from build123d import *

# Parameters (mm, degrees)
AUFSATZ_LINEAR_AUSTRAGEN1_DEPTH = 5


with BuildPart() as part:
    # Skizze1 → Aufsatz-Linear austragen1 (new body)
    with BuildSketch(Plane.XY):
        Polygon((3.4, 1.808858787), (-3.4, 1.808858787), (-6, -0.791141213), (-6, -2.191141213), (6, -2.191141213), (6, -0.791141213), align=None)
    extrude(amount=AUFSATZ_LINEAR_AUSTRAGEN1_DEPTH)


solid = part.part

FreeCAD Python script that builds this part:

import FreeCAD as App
import Part
import Sketcher
from FreeCAD import Vector

doc = App.newDocument("Part")
params = doc.addObject("Spreadsheet::Sheet", "Params")
for row, (alias, value) in enumerate([
    ("sketch1_width", "12 mm"),
    ("sketch1_width2", "6.8 mm"),
    ("sketch1_height", "1.4 mm"),
    ("pad1_length", "5 mm"),
], start=1):
    params.set(f"A{row}", alias)
    params.set(f"B{row}", "=" + value)
    params.setAlias(f"B{row}", alias)

body = doc.addObject("PartDesign::Body", "Body")

sketch1 = body.newObject("Sketcher::SketchObject", "Sketch")
sketch1.AttachmentSupport = (doc.getObject("XY_Plane"), [""])
sketch1.MapMode = "FlatFace"
sketch1.addGeometry([
    Part.LineSegment(Vector(3.4, 1.8, 0), Vector(-3.4, 1.8, 0)),
    Part.LineSegment(Vector(-3.4, 1.8, 0), Vector(-6, -0.8, 0)),
    Part.LineSegment(Vector(-6, -0.8, 0), Vector(-6, -2.2, 0)),
    Part.LineSegment(Vector(-6, -2.2, 0), Vector(6, -2.2, 0)),
    Part.LineSegment(Vector(6, -2.2, 0), Vector(6, -0.8, 0)),
    Part.LineSegment(Vector(6, -0.8, 0), Vector(3.4, 1.8, 0)),
], False)
sketch1.addConstraint([
    Sketcher.Constraint("Coincident", 0, 2, 1, 1),
    Sketcher.Constraint("Coincident", 1, 2, 2, 1),
    Sketcher.Constraint("Coincident", 2, 2, 3, 1),
    Sketcher.Constraint("Coincident", 3, 2, 4, 1),
    Sketcher.Constraint("Coincident", 4, 2, 5, 1),
    Sketcher.Constraint("Coincident", 5, 2, 0, 1),
    Sketcher.Constraint("Horizontal", 0),
    Sketcher.Constraint("Vertical", 2),
    Sketcher.Constraint("Horizontal", 3),
    Sketcher.Constraint("Vertical", 4),
    Sketcher.Constraint("Symmetric", 1, 2, 4, 2, -2),
    Sketcher.Constraint("Perpendicular", 1, 5),
    Sketcher.Constraint("Equal", 1, 5),
    Sketcher.Constraint("DistanceX", 3, 1, 3, 2, 12.0),
    Sketcher.Constraint("DistanceX", 0, 2, 0, 1, 6.8),
    Sketcher.Constraint("DistanceY", 2, 2, 2, 1, 1.4),
    Sketcher.Constraint("DistanceY", -1, 1, 0, 2, 1.808859),
])
sketch1.setExpression("Constraints[13]", "Params.sketch1_width")
sketch1.setExpression("Constraints[14]", "Params.sketch1_width2")
sketch1.setExpression("Constraints[15]", "Params.sketch1_height")
pad1 = body.newObject("PartDesign::Pad", "Pad")
pad1.Profile = sketch1
pad1.setExpression("Length", "Params.pad1_length")

doc.recompute()
